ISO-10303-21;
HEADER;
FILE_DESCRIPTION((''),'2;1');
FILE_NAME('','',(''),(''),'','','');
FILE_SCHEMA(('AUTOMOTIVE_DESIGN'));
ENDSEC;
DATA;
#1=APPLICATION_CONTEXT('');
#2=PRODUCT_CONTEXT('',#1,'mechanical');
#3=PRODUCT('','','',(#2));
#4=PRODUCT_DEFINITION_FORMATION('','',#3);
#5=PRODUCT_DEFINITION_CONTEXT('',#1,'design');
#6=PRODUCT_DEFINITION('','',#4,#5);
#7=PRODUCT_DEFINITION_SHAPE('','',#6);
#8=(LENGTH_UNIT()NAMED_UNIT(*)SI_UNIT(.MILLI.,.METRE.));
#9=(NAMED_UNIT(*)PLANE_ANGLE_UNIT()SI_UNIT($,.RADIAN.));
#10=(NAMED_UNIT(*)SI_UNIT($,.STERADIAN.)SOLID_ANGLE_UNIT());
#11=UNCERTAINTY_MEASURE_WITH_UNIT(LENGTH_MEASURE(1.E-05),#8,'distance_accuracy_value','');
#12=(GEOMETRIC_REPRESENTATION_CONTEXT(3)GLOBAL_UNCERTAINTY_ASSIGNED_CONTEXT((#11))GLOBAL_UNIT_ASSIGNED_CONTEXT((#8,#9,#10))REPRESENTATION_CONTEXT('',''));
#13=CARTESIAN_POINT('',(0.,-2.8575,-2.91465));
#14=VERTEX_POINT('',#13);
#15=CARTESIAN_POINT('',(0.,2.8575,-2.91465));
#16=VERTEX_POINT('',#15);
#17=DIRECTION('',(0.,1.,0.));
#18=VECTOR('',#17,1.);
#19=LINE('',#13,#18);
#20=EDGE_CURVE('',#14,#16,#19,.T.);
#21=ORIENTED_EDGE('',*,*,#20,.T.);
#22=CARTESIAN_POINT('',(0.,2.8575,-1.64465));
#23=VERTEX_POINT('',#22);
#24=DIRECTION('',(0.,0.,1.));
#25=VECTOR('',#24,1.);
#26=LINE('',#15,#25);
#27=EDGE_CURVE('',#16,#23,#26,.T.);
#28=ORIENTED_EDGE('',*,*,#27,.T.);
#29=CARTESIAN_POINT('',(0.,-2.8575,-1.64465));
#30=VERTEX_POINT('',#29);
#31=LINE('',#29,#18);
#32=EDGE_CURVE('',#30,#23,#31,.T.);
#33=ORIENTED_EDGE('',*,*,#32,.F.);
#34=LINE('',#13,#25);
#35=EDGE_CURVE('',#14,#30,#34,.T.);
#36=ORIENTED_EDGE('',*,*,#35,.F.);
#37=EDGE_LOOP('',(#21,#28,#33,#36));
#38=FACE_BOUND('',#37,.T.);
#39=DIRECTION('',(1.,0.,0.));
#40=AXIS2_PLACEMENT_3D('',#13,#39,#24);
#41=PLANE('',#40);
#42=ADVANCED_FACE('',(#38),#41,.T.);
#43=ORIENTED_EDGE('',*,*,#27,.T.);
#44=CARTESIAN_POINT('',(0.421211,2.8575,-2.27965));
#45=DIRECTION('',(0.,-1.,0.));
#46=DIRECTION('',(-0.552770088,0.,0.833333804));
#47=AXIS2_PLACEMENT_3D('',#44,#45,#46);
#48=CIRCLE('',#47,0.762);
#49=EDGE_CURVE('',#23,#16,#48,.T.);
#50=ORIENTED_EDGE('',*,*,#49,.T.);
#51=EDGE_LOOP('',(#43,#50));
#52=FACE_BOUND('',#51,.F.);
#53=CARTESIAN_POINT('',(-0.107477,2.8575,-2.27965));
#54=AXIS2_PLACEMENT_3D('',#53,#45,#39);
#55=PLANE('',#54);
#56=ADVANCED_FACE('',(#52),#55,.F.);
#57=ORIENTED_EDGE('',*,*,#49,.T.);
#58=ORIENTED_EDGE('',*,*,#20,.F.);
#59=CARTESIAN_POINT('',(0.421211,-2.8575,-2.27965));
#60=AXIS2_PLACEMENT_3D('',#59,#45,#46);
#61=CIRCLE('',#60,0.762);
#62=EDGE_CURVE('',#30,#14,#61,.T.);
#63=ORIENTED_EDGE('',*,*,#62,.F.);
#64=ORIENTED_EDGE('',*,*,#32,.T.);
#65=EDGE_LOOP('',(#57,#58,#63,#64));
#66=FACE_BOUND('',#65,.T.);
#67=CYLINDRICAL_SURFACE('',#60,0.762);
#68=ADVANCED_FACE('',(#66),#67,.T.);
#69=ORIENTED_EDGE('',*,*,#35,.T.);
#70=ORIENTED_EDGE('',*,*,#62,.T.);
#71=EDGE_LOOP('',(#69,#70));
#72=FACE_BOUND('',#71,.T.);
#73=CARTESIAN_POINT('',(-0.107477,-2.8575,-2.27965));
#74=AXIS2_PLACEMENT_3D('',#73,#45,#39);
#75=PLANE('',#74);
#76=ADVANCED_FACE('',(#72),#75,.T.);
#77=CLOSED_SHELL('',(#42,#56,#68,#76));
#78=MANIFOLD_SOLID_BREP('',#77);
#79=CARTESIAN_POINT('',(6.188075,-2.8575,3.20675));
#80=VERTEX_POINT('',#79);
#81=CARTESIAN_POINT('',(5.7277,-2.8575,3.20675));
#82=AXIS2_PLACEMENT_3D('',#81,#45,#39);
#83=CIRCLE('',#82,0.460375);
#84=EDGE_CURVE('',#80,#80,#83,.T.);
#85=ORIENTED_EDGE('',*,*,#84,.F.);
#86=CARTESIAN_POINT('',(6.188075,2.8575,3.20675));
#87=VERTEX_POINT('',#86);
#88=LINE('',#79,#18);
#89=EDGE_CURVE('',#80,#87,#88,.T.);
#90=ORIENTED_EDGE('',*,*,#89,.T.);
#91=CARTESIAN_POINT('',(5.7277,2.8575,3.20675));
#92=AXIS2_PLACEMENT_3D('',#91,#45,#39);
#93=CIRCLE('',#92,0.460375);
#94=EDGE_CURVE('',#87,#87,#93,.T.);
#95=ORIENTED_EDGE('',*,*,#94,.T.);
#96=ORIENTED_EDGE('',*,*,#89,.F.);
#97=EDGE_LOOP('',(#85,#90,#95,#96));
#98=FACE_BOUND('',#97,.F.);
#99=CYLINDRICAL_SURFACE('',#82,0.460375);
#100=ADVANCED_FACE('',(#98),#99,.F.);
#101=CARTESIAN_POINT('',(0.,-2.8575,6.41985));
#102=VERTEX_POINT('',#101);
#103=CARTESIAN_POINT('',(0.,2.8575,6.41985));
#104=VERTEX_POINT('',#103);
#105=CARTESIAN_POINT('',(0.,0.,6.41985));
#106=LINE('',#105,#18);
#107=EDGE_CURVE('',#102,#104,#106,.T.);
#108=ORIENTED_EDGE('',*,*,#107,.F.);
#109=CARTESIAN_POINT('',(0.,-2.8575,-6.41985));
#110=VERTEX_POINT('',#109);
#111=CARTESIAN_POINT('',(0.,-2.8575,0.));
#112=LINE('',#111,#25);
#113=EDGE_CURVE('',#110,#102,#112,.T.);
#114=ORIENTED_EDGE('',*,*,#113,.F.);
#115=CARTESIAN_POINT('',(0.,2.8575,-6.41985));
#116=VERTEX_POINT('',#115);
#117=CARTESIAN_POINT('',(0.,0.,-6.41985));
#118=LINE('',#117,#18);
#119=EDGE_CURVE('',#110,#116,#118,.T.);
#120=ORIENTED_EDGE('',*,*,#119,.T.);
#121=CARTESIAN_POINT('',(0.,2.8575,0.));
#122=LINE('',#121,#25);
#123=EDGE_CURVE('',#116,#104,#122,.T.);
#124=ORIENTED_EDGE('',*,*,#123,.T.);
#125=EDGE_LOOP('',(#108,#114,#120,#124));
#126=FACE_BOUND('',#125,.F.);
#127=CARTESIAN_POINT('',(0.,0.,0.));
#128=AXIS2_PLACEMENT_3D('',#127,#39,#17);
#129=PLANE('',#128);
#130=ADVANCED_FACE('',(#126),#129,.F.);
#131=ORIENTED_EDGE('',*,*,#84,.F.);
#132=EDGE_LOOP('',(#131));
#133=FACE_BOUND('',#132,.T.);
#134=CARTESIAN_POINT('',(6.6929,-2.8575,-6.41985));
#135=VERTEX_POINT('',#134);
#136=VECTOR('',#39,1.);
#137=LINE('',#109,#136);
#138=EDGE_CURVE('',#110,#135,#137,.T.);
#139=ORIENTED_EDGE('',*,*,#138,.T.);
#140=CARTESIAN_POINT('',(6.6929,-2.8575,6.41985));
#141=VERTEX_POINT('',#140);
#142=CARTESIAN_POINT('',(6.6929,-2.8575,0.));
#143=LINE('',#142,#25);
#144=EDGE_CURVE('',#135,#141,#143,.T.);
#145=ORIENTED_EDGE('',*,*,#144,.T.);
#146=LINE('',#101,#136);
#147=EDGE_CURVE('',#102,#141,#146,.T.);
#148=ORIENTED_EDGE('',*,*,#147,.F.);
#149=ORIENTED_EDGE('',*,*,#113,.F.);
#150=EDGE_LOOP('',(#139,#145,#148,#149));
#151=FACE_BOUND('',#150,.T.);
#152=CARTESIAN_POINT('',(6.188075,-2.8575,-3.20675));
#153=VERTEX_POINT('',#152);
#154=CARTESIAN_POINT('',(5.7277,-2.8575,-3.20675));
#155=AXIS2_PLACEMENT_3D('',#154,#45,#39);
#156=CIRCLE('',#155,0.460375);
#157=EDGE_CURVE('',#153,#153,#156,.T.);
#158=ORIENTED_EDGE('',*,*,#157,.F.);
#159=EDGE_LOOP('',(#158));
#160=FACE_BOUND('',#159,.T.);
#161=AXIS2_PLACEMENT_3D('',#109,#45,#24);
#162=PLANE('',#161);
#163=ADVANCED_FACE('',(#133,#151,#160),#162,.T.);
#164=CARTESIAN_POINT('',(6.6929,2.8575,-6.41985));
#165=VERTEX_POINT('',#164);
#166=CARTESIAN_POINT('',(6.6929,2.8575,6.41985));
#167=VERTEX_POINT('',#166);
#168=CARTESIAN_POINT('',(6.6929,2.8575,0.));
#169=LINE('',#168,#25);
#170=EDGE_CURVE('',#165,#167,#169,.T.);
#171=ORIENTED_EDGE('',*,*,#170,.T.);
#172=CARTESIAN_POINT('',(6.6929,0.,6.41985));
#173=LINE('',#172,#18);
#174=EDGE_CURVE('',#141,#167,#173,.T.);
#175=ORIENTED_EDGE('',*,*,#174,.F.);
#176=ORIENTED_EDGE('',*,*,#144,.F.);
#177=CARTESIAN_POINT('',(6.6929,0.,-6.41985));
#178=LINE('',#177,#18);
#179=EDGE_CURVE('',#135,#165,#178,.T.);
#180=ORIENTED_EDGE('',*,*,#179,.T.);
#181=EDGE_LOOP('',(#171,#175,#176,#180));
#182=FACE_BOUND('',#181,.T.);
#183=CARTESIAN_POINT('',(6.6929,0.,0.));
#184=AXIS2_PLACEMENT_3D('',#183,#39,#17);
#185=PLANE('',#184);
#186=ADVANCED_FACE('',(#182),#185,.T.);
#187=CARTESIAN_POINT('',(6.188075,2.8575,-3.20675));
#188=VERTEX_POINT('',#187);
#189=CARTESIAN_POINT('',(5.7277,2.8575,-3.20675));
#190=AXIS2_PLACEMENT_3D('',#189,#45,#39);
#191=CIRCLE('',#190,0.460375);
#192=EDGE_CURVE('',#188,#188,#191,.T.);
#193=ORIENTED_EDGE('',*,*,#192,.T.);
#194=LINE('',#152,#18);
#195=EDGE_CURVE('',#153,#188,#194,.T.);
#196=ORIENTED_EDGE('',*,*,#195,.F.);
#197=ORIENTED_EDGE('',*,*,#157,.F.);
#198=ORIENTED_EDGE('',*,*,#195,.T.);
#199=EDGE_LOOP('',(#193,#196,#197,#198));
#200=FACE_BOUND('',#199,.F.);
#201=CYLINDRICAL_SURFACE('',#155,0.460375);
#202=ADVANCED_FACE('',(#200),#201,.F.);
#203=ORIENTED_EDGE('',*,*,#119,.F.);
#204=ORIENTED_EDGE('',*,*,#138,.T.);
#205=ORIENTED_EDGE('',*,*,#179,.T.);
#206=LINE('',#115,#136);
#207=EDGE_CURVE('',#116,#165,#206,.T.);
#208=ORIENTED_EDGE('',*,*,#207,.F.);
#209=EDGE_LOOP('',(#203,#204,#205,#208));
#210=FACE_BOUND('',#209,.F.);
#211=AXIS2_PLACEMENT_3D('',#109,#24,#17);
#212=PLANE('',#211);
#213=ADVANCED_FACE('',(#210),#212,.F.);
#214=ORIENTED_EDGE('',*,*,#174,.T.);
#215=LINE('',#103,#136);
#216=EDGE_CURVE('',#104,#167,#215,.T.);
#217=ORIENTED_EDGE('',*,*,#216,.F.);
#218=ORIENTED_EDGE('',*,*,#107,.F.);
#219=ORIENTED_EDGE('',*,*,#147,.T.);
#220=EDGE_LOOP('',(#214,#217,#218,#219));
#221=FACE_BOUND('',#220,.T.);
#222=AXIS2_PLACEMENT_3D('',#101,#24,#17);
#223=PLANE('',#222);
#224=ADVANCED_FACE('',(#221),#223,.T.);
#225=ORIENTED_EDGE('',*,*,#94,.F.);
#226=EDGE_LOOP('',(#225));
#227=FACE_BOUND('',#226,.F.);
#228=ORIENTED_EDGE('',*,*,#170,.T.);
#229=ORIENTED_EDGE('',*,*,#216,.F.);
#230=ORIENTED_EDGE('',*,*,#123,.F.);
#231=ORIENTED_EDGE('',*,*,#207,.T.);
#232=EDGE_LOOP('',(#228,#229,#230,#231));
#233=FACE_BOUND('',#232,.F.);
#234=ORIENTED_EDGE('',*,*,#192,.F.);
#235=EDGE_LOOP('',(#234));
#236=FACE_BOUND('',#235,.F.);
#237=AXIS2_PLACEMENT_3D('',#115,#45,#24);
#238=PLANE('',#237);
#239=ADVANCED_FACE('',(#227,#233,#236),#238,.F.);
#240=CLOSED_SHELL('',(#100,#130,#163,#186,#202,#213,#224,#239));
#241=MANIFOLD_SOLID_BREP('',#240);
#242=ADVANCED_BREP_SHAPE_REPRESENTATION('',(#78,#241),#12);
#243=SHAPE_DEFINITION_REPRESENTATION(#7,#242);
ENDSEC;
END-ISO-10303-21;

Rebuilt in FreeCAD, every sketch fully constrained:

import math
import FreeCAD as App
import Part
import Sketcher
from FreeCAD import Vector
Q = App.Units.Quantity

doc = App.newDocument("Part")
body = doc.addObject("PartDesign::Body", "Body")

sketch1 = body.newObject("Sketcher::SketchObject", "Sketch")
sketch1.AttachmentSupport = (doc.getObject("YZ_Plane"), [""])
sketch1.MapMode = "FlatFace"
sketch1.addGeometry([
    Part.LineSegment(Vector(-2.8575, 6.41985, 0), Vector(-2.8575, -6.41985, 0)),
    Part.LineSegment(Vector(-2.8575, -6.41985, 0), Vector(2.8575, -6.41985, 0)),
    Part.LineSegment(Vector(2.8575, -6.41985, 0), Vector(2.8575, 6.41985, 0)),
    Part.LineSegment(Vector(2.8575, 6.41985, 0), Vector(-2.8575, 6.41985, 0)),
], False)
sketch1.addConstraint([
    Sketcher.Constraint("Coincident", 0, 2, 1, 1),
    Sketcher.Constraint("Coincident", 1, 2, 2, 1),
    Sketcher.Constraint("Coincident", 2, 2, 3, 1),
    Sketcher.Constraint("Coincident", 3, 2, 0, 1),
    Sketcher.Constraint("Vertical", 0),
    Sketcher.Constraint("Horizontal", 1),
    Sketcher.Constraint("Vertical", 2),
    Sketcher.Constraint("Horizontal", 3),
    Sketcher.Constraint("Symmetric", 0, 2, 2, 2, -1, 1),
    Sketcher.Constraint("DistanceX", 1, 1, 1, 2, Q("0.225 in")),
    Sketcher.Constraint("DistanceY", 0, 2, 0, 1, Q("0.5055 in")),
])
pad1 = body.newObject("PartDesign::Pad", "Pad")
pad1.Profile = sketch1
pad1.Length = Q("0.2635 in")

sketch2 = body.newObject("Sketcher::SketchObject", "Sketch001")
sketch2.AttachmentSupport = (doc.getObject("XZ_Plane"), [""])
sketch2.MapMode = "FlatFace"
sketch2.AttachmentOffset = App.Placement(Vector(0, 0, 0.1125 * 25.4), App.Rotation())
sketch2.addGeometry([
    Part.Circle(Vector(5.7277, 3.20675, 0), Vector(0, 0, 1), 0.460375),
    Part.Circle(Vector(5.7277, -3.20675, 0), Vector(0, 0, 1), 0.460375),
], False)
sketch2.addConstraint([
    Sketcher.Constraint("Equal", 0, 1),
    Sketcher.Constraint("Symmetric", 0, 3, 1, 3, -1),
    Sketcher.Constraint("Diameter", 0, 0.92075),
    Sketcher.Constraint("DistanceX", -1, 1, 0, 3, Q("0.2255 in")),
    Sketcher.Constraint("DistanceY", 1, 3, 0, 3, Q("0.2525 in")),
])
pocket1 = body.newObject("PartDesign::Pocket", "Pocket")
pocket1.Profile = sketch2
pocket1.Type = "ThroughAll"
body2 = doc.addObject("PartDesign::Body", "Body001")

sketch3 = body2.newObject("Sketcher::SketchObject", "Sketch002")
sketch3.AttachmentSupport = (doc.getObject("XZ_Plane001"), [""])
sketch3.MapMode = "FlatFace"
sketch3.AttachmentOffset = App.Placement(Vector(0, 0, 0.1125 * 25.4), App.Rotation())
sketch3.addGeometry([
    Part.LineSegment(Vector(0, -2.91465, 0), Vector(0, -1.64465, 0)),
    Part.ArcOfCircle(Part.Circle(Vector(0.421211, -2.27965, 0), Vector(0, 0, 1), 0.762), math.radians(123.557261), math.radians(236.442739)),
], False)
sketch3.addConstraint([
    Sketcher.Constraint("Coincident", 0, 1, 1, 2),
    Sketcher.Constraint("Coincident", 1, 1, 0, 2),
    Sketcher.Constraint("Vertical", 0),
    Sketcher.Constraint("PointOnObject", 0, 1, -2),
    Sketcher.Constraint("Radius", 1, Q("0.03 in")),
    Sketcher.Constraint("DistanceY", 0, 1, 0, 2, Q("0.05 in")),
    Sketcher.Constraint("DistanceY", 1, 3, -1, 1, 2.27965),
])
pad2 = body2.newObject("PartDesign::Pad", "Pad001")
pad2.Profile = sketch3
pad2.Length = Q("0.225 in")
pad2.Reversed = True

doc.recompute()
